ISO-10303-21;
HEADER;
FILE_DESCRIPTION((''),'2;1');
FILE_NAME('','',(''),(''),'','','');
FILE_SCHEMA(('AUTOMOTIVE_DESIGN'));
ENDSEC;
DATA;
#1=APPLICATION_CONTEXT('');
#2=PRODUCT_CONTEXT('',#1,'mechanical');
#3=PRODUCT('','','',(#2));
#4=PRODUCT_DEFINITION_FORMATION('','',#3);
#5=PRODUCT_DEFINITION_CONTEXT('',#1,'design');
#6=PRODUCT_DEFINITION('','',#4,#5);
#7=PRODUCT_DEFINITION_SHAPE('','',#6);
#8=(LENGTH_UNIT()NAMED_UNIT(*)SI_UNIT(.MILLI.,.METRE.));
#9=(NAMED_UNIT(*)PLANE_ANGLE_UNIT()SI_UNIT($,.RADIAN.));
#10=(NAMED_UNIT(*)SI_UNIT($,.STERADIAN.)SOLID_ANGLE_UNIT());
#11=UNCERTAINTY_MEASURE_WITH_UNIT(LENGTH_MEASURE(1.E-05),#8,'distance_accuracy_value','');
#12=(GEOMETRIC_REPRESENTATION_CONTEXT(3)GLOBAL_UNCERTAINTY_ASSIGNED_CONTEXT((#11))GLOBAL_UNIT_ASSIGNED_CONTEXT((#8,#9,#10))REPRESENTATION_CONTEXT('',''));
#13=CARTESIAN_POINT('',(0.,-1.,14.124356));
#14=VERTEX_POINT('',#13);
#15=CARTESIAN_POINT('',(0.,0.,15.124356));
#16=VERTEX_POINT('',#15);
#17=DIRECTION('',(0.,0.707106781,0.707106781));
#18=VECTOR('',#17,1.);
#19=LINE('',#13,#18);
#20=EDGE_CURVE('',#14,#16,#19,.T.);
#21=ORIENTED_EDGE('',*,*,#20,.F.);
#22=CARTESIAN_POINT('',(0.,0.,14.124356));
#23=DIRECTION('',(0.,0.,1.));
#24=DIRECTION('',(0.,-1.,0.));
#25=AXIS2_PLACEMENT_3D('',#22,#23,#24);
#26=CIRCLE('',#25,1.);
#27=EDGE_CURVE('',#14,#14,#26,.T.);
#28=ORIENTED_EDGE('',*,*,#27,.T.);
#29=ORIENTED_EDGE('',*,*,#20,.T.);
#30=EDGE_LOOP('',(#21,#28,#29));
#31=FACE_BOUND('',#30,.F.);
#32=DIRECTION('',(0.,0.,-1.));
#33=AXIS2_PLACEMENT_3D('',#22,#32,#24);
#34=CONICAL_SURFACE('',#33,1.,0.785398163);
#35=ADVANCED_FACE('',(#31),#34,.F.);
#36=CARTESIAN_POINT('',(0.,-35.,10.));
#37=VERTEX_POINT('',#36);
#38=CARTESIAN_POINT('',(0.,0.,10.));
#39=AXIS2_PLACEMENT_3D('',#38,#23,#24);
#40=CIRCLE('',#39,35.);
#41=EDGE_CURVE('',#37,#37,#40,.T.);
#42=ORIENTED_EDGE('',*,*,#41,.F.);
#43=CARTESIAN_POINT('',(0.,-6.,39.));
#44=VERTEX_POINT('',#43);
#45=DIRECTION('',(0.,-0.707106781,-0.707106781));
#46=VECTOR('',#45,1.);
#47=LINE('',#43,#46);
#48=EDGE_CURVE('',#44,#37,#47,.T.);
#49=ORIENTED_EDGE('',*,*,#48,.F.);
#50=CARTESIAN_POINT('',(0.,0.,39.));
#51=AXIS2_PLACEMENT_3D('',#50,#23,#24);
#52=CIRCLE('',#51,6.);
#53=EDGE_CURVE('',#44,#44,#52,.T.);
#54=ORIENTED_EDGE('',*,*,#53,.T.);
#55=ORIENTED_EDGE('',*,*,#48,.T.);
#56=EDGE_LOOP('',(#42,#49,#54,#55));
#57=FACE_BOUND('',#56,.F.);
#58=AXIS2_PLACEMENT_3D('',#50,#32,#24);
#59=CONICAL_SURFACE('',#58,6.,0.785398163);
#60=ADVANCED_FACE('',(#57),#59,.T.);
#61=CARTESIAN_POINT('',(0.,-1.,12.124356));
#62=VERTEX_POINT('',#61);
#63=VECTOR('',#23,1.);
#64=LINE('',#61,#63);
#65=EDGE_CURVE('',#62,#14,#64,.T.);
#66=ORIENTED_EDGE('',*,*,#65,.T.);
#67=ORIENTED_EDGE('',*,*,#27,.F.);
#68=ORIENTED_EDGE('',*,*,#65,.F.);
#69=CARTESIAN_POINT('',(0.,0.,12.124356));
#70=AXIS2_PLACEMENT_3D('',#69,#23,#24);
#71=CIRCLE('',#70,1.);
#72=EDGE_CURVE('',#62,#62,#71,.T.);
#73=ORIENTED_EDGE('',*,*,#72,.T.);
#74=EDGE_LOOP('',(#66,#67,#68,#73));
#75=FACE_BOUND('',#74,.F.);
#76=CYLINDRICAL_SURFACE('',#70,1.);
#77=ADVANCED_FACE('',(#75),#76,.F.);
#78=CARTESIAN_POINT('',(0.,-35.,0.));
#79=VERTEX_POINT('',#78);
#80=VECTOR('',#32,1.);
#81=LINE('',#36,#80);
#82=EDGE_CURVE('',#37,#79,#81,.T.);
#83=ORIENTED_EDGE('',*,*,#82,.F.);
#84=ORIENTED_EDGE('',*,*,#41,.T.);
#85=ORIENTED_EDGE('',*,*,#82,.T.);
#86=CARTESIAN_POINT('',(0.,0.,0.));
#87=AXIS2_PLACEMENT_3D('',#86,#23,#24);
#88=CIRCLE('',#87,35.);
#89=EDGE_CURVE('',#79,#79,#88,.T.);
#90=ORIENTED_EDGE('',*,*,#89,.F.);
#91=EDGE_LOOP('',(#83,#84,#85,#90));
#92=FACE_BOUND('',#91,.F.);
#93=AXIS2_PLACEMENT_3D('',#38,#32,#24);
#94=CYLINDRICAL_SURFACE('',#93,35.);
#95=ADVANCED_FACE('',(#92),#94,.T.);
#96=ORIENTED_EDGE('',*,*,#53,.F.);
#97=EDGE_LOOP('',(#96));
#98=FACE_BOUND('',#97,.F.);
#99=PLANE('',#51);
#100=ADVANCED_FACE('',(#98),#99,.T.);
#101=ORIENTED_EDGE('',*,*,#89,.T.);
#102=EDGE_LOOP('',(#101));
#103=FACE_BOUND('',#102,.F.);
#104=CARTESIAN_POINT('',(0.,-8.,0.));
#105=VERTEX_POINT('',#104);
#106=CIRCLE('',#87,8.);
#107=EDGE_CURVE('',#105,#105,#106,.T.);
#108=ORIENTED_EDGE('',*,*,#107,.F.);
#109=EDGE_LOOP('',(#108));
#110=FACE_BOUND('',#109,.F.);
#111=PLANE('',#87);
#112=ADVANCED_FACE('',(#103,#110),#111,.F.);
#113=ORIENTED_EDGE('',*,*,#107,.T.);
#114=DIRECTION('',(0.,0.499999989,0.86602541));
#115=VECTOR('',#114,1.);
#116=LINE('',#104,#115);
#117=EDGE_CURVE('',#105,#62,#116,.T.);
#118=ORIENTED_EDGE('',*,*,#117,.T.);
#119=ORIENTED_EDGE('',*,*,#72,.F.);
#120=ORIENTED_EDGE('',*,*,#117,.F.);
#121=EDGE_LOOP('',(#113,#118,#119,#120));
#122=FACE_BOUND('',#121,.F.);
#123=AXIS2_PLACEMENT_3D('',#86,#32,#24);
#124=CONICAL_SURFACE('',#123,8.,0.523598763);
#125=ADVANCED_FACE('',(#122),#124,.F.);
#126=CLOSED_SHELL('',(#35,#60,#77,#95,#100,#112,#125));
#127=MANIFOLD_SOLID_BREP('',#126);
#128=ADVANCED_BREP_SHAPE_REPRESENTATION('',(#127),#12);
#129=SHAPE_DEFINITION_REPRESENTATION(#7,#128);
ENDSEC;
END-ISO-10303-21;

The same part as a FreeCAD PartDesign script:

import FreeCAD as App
import Part
import Sketcher
Q = App.Units.Quantity

doc = App.newDocument("Part")
body = doc.addObject("PartDesign::Body", "Body")

sketch1 = body.newObject("Sketcher::SketchObject", "Sketch")
sketch1.AttachmentSupport = (doc.getObject("YZ_Plane"), [""])
sketch1.MapMode = "FlatFace"
sketch1.addGeometry([
    Part.LineSegment(App.Vector(0, 39, 0), App.Vector(-6, 39, 0)),
    Part.LineSegment(App.Vector(-6, 39, 0), App.Vector(-35, 10, 0)),
    Part.LineSegment(App.Vector(-35, 10, 0), App.Vector(-35, 0, 0)),
    Part.LineSegment(App.Vector(-35, 0, 0), App.Vector(-8, 0, 0)),
    Part.LineSegment(App.Vector(-8, 0, 0), App.Vector(-1, 12.124356, 0)),
    Part.LineSegment(App.Vector(-1, 12.124356, 0), App.Vector(-1, 14.124356, 0)),
    Part.LineSegment(App.Vector(-1, 14.124356, 0), App.Vector(0, 15.124356, 0)),
    Part.LineSegment(App.Vector(0, 15.124356, 0), App.Vector(0, 39, 0)),
], False)
sketch1.addConstraint([
    Sketcher.Constraint("Coincident", 0, 2, 1, 1),
    Sketcher.Constraint("Coincident", 1, 2, 2, 1),
    Sketcher.Constraint("Coincident", 2, 2, 3, 1),
    Sketcher.Constraint("Coincident", 3, 2, 4, 1),
    Sketcher.Constraint("Coincident", 4, 2, 5, 1),
    Sketcher.Constraint("Coincident", 5, 2, 6, 1),
    Sketcher.Constraint("Coincident", 6, 2, 7, 1),
    Sketcher.Constraint("Coincident", 7, 2, 0, 1),
    Sketcher.Constraint("Horizontal", 0),
    Sketcher.Constraint("Vertical", 2),
    Sketcher.Constraint("Horizontal", 3),
    Sketcher.Constraint("Vertical", 5),
    Sketcher.Constraint("Vertical", 7),
    Sketcher.Constraint("PointOnObject", 2, 2, -1),
    Sketcher.Constraint("PointOnObject", 6, 2, -2),
    Sketcher.Constraint("Parallel", 1, 6),
    Sketcher.Constraint("DistanceX", 0, 2, 0, 1, Q("6 mm")),
    Sketcher.Constraint("DistanceX", 3, 1, 3, 2, Q("27 mm")),
    Sketcher.Constraint("DistanceY", 2, 2, 2, 1, Q("10 mm")),
    Sketcher.Constraint("DistanceY", 5, 1, 5, 2, Q("2 mm")),
    Sketcher.Constraint("Angle", 1, Q("-135 deg")),
    Sketcher.Constraint("Angle", 4, Q("60.000001 deg")),
    Sketcher.Constraint("Distance", 4, Q("14 mm")),
    Sketcher.Constraint("DistanceY", -1, 1, 0, 2, Q("39 mm")),
])
revolution = body.newObject("PartDesign::Revolution", "Revolution")
revolution.Profile = sketch1
revolution.ReferenceAxis = (sketch1, ["V_Axis"])
revolution.Angle = 360

doc.recompute()
